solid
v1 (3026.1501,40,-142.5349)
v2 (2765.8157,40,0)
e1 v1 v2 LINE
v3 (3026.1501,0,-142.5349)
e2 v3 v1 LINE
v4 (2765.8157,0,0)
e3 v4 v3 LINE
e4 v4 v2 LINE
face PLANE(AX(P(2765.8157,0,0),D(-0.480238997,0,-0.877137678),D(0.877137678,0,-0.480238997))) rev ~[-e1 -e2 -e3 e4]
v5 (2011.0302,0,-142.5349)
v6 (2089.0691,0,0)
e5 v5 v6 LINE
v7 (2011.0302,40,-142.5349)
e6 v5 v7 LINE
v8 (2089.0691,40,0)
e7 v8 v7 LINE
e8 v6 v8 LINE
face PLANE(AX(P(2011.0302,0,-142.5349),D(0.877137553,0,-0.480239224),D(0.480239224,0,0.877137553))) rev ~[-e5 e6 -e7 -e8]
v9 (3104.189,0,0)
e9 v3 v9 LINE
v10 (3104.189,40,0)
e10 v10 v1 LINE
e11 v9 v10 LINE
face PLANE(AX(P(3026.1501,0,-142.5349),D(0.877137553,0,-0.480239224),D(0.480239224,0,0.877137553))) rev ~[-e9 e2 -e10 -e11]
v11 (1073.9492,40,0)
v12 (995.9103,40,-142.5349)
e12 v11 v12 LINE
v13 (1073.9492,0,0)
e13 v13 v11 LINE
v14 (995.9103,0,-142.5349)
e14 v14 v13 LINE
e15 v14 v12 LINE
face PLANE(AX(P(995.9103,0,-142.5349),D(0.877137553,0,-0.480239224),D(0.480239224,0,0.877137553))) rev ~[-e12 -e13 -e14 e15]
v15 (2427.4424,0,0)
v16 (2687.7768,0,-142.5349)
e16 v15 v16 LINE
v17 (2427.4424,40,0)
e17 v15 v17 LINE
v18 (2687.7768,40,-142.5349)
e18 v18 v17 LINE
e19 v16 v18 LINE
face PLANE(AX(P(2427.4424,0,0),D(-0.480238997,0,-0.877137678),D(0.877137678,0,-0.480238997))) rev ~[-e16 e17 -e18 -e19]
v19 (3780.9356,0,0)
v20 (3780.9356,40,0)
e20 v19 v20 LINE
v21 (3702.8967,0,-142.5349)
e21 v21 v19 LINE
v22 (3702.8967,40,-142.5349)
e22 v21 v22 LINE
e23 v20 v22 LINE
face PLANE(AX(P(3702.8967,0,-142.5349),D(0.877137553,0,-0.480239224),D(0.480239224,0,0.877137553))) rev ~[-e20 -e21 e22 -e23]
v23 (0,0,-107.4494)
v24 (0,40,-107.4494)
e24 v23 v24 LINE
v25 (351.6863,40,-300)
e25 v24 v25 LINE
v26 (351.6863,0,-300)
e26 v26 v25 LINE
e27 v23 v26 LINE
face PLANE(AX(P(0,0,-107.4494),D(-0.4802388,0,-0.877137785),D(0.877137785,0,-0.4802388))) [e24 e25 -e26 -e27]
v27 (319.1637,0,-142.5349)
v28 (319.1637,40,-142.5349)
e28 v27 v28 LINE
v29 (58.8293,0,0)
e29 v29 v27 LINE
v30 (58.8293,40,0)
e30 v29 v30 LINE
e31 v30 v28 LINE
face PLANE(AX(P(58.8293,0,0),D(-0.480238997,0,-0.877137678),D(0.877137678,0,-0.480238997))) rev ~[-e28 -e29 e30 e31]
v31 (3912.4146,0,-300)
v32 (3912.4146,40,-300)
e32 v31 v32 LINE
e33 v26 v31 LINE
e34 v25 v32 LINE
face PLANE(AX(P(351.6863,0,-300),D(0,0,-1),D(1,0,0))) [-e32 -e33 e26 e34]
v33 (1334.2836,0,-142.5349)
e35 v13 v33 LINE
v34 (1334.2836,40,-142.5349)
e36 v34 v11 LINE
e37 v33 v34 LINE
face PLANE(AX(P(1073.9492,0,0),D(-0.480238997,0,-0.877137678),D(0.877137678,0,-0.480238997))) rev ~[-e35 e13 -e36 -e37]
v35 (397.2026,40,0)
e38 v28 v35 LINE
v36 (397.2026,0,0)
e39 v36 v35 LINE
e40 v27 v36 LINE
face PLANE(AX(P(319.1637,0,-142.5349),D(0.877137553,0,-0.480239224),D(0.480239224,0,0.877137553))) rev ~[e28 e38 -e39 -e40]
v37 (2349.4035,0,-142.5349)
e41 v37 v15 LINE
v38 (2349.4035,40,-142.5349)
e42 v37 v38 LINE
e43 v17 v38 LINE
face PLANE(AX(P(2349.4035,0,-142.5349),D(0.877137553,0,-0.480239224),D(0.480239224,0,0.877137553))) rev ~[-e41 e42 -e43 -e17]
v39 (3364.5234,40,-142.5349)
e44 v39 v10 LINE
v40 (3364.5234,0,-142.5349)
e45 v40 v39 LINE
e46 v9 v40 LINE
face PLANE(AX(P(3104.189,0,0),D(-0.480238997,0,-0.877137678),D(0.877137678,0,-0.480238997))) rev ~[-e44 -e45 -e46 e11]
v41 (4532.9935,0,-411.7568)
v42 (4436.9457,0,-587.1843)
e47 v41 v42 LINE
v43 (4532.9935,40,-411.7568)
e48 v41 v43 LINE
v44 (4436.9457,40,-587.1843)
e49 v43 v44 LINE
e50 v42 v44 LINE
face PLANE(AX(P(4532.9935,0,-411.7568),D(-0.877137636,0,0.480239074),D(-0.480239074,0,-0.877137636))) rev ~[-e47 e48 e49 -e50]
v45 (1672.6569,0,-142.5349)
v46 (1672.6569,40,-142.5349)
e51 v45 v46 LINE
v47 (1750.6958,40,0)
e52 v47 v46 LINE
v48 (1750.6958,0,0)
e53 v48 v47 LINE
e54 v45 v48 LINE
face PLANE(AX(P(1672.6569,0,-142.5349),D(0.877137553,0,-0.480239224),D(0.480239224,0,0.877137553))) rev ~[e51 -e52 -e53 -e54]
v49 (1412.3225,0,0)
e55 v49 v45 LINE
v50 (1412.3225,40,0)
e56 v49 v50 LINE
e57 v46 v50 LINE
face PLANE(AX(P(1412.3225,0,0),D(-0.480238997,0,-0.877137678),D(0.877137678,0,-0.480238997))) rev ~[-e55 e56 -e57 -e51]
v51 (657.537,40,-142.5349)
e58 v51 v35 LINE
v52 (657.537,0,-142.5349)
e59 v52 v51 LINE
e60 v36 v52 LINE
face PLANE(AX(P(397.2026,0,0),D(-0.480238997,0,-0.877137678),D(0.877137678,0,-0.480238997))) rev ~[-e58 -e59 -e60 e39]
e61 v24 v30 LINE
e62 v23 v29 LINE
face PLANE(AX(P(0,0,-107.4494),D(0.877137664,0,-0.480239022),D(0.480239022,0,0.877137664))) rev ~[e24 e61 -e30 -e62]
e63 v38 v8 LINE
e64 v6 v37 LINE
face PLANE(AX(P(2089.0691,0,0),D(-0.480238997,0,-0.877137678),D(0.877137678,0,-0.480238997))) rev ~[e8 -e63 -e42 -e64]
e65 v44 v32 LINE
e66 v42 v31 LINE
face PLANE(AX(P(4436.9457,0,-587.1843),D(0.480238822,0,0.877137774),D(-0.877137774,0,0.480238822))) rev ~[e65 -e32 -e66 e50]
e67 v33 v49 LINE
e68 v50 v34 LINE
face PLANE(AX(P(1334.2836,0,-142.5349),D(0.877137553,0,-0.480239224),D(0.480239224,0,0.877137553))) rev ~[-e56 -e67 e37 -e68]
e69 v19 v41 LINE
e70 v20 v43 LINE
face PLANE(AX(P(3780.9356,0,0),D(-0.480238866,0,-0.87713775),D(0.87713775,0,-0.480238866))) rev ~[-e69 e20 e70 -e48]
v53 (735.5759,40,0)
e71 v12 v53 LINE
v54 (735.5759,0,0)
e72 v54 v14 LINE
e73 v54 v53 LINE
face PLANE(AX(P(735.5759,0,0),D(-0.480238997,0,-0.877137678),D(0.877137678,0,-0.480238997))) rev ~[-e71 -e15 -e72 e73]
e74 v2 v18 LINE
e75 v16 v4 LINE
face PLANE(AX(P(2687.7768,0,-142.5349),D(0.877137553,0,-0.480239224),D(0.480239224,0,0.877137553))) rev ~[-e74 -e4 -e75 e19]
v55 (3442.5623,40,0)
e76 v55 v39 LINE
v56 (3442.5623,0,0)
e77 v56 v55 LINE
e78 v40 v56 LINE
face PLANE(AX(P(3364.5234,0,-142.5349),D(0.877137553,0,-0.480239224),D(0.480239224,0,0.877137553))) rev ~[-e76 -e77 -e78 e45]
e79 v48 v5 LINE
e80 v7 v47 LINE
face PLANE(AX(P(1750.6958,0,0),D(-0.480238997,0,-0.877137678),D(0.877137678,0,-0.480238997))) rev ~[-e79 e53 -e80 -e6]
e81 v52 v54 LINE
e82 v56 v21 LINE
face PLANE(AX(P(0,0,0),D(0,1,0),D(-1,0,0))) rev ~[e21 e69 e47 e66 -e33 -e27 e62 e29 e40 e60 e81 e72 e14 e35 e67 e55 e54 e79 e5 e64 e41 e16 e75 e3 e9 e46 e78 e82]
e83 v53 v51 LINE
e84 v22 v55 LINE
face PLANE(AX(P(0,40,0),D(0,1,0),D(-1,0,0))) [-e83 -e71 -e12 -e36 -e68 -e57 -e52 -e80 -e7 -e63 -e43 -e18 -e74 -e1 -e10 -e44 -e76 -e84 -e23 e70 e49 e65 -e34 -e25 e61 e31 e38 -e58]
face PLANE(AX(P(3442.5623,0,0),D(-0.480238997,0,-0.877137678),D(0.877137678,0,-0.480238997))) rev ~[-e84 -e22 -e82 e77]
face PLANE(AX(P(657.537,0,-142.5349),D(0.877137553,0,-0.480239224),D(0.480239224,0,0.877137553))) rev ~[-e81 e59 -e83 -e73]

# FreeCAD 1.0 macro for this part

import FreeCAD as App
import Part
import Sketcher
from FreeCAD import Vector
Q = App.Units.Quantity


def add_polygon(sketch, points):
    """Adds a closed chain of lines whose ends are joined by coincident constraints."""
    first, n = sketch.GeometryCount, len(points)
    for a, b in zip(points, points[1:] + points[:1]):
        sketch.addGeometry(Part.LineSegment(App.Vector(*a, 0), App.Vector(*b, 0)), False)
    for i in range(n):
        sketch.addConstraint(Sketcher.Constraint("Coincident", first + i, 2, first + (i + 1) % n, 1))

doc = App.newDocument("Part")
body = doc.addObject("PartDesign::Body", "Body")

# Sketch on XZ plane
sketch1 = doc.addObject("Sketcher::SketchObject", "Sketch")
body.addObject(sketch1)
sketch1.AttachmentSupport = (doc.XZ_Plane, [""])
sketch1.MapMode = "FlatFace"
add_polygon(sketch1, [(3912.4146, -300), (351.6863, -300), (0, -107.4494), (58.8293, 0), (319.1637, -142.5349), (397.2026, 0), (3780.9356, 0), (4532.9935, -411.7568), (4436.9457, -587.1843)])  # lines 0-8
sketch1.addConstraint(Sketcher.Constraint("Horizontal", 0))
sketch1.addConstraint(Sketcher.Constraint("Horizontal", 5))
sketch1.addConstraint(Sketcher.Constraint("PointOnObject", 1, 2, -2))
sketch1.addConstraint(Sketcher.Constraint("PointOnObject", 2, 2, -1))
sketch1.addConstraint(Sketcher.Constraint("PointOnObject", 4, 2, -1))
sketch1.addConstraint(Sketcher.Constraint("Perpendicular", 1, 2))
sketch1.addConstraint(Sketcher.Constraint("Perpendicular", 2, 3))
sketch1.addConstraint(Sketcher.Constraint("Perpendicular", 3, 4))
sketch1.addConstraint(Sketcher.Constraint("Perpendicular", 4, 6))
sketch1.addConstraint(Sketcher.Constraint("Perpendicular", 6, 7))
sketch1.addConstraint(Sketcher.Constraint("Perpendicular", 7, 8))
sketch1.addConstraint(Sketcher.Constraint("Distance", 7, Q("200 mm")))
sketch1.addConstraint(Sketcher.Constraint("DistanceY", 0, 2, -1, 1, Q("300 mm")))
sketch1.addConstraint(Sketcher.Constraint("Distance", 2, Q("122.5 mm")))
sketch1.addConstraint(Sketcher.Constraint("Distance", 3, Q("296.8 mm")))
sketch1.addConstraint(Sketcher.Constraint("Distance", 4, Q("162.5 mm")))
sketch1.addConstraint(Sketcher.Constraint("Distance", 6, Q("857.4 mm")))
sketch1.addConstraint(Sketcher.Constraint("DistanceX", 5, 1, 5, 2, Q("3383.733 mm")))
pad1 = doc.addObject("PartDesign::Pad", "Pad")
body.addObject(pad1)
pad1.Profile = sketch1
pad1.Length = 40
pad1.Reversed = True

# Sketch on XZ plane
sketch2 = doc.addObject("Sketcher::SketchObject", "Sketch001")
body.addObject(sketch2)
sketch2.AttachmentSupport = (doc.XZ_Plane, [""])
sketch2.MapMode = "FlatFace"
add_polygon(sketch2, [(657.537, -142.5349), (397.2026, 0), (735.5759, 0)])  # lines 0-2
sketch2.addConstraint(Sketcher.Constraint("Horizontal", 1))
sketch2.addConstraint(Sketcher.Constraint("PointOnObject", 0, 2, -1))
sketch2.addConstraint(Sketcher.Constraint("Perpendicular", 0, 2))
sketch2.addConstraint(Sketcher.Constraint("DistanceX", 1, 1, 1, 2, Q("338.3733 mm")))
sketch2.addConstraint(Sketcher.Constraint("Angle", 0, Q("151.299 deg")))
sketch2.addConstraint(Sketcher.Constraint("DistanceX", -1, 1, 1, 2, Q("735.576 mm")))
pocket1 = doc.addObject("PartDesign::Pocket", "Pocket")
body.addObject(pocket1)
pocket1.Profile = sketch2
pocket1.Type = "ThroughAll"
doc.recompute()

linearpattern = doc.addObject("PartDesign::LinearPattern", "LinearPattern")
body.addObject(linearpattern)
linearpattern.Originals = [pocket1]
linearpattern.Direction = (doc.X_Axis, [""])
linearpattern.Mode = "offset"
linearpattern.Offset = 338.3733
linearpattern.Occurrences = 10
body.Tip = linearpattern

doc.recompute()
